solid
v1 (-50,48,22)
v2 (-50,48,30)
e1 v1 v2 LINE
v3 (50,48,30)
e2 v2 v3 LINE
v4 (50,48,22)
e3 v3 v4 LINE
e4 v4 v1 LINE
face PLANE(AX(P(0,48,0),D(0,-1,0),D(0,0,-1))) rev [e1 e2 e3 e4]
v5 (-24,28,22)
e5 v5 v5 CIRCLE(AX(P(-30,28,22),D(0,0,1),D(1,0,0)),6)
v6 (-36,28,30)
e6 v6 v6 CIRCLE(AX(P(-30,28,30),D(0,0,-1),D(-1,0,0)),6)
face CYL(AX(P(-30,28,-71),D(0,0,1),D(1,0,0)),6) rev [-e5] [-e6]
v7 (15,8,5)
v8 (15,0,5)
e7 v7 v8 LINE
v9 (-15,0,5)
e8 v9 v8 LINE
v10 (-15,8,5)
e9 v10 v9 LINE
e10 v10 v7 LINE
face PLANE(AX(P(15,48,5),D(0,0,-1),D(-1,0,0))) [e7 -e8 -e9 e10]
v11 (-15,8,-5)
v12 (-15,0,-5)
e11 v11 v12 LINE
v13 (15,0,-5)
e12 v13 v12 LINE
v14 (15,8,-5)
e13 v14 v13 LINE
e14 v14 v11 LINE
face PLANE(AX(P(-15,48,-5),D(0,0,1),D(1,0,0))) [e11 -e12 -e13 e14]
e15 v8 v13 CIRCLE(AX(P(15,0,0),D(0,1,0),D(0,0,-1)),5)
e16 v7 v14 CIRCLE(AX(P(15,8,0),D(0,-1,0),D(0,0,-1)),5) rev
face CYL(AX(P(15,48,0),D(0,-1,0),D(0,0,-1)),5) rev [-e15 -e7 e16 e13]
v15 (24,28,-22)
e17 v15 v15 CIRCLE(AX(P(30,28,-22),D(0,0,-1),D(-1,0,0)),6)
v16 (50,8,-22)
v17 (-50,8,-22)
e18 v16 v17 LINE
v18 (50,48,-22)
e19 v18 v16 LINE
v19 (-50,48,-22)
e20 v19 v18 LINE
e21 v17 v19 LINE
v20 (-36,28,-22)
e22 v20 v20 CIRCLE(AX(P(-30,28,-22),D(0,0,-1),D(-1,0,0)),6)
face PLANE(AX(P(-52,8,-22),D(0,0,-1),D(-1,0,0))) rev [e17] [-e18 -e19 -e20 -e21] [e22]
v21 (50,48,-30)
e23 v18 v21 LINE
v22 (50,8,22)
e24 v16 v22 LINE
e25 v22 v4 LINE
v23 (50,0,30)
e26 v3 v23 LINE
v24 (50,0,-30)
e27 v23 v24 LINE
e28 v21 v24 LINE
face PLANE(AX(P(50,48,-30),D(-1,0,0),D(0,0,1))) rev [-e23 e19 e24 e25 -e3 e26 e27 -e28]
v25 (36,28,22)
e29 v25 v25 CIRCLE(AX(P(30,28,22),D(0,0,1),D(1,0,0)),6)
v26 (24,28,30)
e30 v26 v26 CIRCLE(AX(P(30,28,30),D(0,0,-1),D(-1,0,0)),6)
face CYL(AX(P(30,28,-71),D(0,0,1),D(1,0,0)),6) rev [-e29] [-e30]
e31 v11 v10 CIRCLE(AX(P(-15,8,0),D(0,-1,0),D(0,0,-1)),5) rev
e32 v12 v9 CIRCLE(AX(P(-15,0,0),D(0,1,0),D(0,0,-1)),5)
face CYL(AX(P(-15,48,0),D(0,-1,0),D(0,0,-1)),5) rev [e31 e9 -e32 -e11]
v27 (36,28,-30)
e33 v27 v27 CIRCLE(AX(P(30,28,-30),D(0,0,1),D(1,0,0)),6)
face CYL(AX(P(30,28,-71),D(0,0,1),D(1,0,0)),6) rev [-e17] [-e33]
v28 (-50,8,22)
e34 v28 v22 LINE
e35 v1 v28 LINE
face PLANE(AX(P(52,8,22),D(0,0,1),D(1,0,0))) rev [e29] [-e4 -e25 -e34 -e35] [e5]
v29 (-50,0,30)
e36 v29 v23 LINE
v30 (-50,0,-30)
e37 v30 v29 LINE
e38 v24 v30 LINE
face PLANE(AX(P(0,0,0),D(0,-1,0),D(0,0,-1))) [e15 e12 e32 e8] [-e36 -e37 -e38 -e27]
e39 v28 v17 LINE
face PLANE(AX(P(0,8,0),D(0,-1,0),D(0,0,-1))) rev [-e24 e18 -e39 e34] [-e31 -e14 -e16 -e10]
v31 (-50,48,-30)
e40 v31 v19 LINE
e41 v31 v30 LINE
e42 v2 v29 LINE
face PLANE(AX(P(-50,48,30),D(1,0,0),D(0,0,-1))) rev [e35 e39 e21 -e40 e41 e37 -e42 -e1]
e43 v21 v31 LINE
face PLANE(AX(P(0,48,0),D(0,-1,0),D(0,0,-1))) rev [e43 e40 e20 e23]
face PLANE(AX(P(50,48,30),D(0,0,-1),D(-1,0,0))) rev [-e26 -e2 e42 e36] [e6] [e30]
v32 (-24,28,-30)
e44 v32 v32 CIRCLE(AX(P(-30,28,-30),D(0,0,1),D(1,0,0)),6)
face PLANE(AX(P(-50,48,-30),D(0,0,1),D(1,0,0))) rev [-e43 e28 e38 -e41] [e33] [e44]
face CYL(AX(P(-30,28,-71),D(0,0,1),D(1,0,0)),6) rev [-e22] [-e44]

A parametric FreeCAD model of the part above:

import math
import FreeCAD as App
import Part
import Sketcher

V = App.Vector
Q = App.Units.Quantity


def add_polygon(sketch, points):
    """Adds a closed chain of lines whose ends are joined by coincident constraints."""
    first, n = sketch.GeometryCount, len(points)
    for a, b in zip(points, points[1:] + points[:1]):
        sketch.addGeometry(Part.LineSegment(App.Vector(*a, 0), App.Vector(*b, 0)), False)
    for i in range(n):
        sketch.addConstraint(Sketcher.Constraint("Coincident", first + i, 2, first + (i + 1) % n, 1))

doc = App.newDocument("Part")
body = doc.addObject("PartDesign::Body", "Body")

# Sketch on XZ plane
sketch1 = body.newObject("Sketcher::SketchObject", "Sketch")
sketch1.AttachmentSupport = (doc.getObject("XZ_Plane"), [""])
sketch1.MapMode = "FlatFace"
add_polygon(sketch1, [(-50, -30), (-50, 30), (50, 30), (50, -30)])  # lines 0-3
sketch1.addConstraint([
    Sketcher.Constraint("Vertical", 0),
    Sketcher.Constraint("Horizontal", 1),
    Sketcher.Constraint("Vertical", 2),
    Sketcher.Constraint("Horizontal", 3),
    Sketcher.Constraint("Symmetric", 0, 2, 2, 2, -1, 1),
    Sketcher.Constraint("DistanceX", 1, 1, 1, 2, Q("100 mm")),
    Sketcher.Constraint("DistanceY", 0, 1, 0, 2, Q("60 mm")),
])
pad1 = body.newObject("PartDesign::Pad", "Pad")
pad1.Profile = sketch1
pad1.Length = 48
pad1.Reversed = True

# Sketch on XZ plane
sketch2 = body.newObject("Sketcher::SketchObject", "Sketch001")
sketch2.AttachmentSupport = (doc.getObject("XZ_Plane"), [""])
sketch2.MapMode = "FlatFace"
sketch2.AttachmentOffset = App.Placement(V(0, 0, -48), App.Rotation())
add_polygon(sketch2, [(-52, -22), (-52, 22), (52, 22), (52, -22)])  # lines 0-3
sketch2.addConstraint([
    Sketcher.Constraint("Vertical", 0),
    Sketcher.Constraint("Horizontal", 1),
    Sketcher.Constraint("Vertical", 2),
    Sketcher.Constraint("Horizontal", 3),
    Sketcher.Constraint("Symmetric", 0, 2, 2, 2, -1, 1),
    Sketcher.Constraint("DistanceX", 1, 1, 1, 2, Q("104 mm")),
    Sketcher.Constraint("DistanceY", 0, 1, 0, 2, Q("44 mm")),
])
pocket1 = body.newObject("PartDesign::Pocket", "Pocket")
pocket1.Profile = sketch2
pocket1.Length = 40
pocket1.Reversed = True

# Sketch on XZ plane
sketch3 = body.newObject("Sketcher::SketchObject", "Sketch002")
sketch3.AttachmentSupport = (doc.getObject("XZ_Plane"), [""])
sketch3.MapMode = "FlatFace"
sketch3.addGeometry([
    Part.LineSegment(V(15, -5, 0), V(-15, -5, 0)),
    Part.ArcOfCircle(Part.Circle(V(-15, 0, 0), V(0, 0, 1), 5), math.radians(90), math.radians(270)),
    Part.LineSegment(V(-15, 5, 0), V(15, 5, 0)),
    Part.ArcOfCircle(Part.Circle(V(15, 0, 0), V(0, 0, 1), 5), math.radians(-90), math.radians(90)),
], False)
sketch3.addConstraint([
    Sketcher.Constraint("Tangent", 0, 2, 1, 2),
    Sketcher.Constraint("Tangent", 1, 1, 2, 1),
    Sketcher.Constraint("Tangent", 2, 2, 3, 2),
    Sketcher.Constraint("Tangent", 3, 1, 0, 1),
    Sketcher.Constraint("Horizontal", 0),
    Sketcher.Constraint("Horizontal", 2),
    Sketcher.Constraint("Symmetric", 1, 3, 3, 3, -1, 1),
    Sketcher.Constraint("Radius", 1, Q("5 mm")),
    Sketcher.Constraint("DistanceX", 0, 2, 0, 1, Q("30 mm")),
])
pocket2 = body.newObject("PartDesign::Pocket", "Pocket001")
pocket2.Profile = sketch3
pocket2.Type = "ThroughAll"

# Sketch on XY plane
sketch4 = body.newObject("Sketcher::SketchObject", "Sketch003")
sketch4.AttachmentSupport = (doc.getObject("XY_Plane"), [""])
sketch4.MapMode = "FlatFace"
sketch4.AttachmentOffset = App.Placement(V(0, 0, 30), App.Rotation())
sketch4.addGeometry([
    Part.Circle(V(-30, 28, 0), V(0, 0, 1), 6),
    Part.Circle(V(30, 28, 0), V(0, 0, 1), 6),
], False)
sketch4.addConstraint([
    Sketcher.Constraint("Equal", 0, 1),
    Sketcher.Constraint("Symmetric", 0, 3, 1, 3, -2),
    Sketcher.Constraint("Diameter", 0, Q("12 mm")),
    Sketcher.Constraint("DistanceX", 0, 3, -1, 1, Q("30 mm")),
    Sketcher.Constraint("DistanceY", -1, 1, 0, 3, Q("28 mm")),
])
pocket3 = body.newObject("PartDesign::Pocket", "Pocket002")
pocket3.Profile = sketch4
pocket3.Length = 202
pocket3.Midplane = True

doc.recompute()
